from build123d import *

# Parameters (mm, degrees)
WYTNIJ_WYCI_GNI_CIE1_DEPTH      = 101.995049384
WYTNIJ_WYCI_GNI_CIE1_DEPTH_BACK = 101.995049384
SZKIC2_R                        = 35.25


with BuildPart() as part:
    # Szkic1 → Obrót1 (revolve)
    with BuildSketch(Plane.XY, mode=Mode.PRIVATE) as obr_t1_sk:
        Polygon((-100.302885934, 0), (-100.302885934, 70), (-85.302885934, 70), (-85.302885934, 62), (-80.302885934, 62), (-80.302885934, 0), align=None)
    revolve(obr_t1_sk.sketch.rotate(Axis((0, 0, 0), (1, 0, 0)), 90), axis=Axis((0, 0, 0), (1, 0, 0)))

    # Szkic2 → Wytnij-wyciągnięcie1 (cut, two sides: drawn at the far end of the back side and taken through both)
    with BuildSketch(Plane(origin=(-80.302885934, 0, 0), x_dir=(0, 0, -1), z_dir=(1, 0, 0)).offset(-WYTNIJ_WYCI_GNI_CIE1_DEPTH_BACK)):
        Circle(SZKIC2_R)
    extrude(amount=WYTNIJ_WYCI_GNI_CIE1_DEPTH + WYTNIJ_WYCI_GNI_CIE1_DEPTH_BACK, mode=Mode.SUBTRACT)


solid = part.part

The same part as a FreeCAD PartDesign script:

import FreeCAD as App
import Part
import Sketcher

doc = App.newDocument("Part")
body = doc.addObject("PartDesign::Body", "Body")

# Sketch on XY plane
sketch1 = doc.addObject("Sketcher::SketchObject", "Sketch")
body.addObject(sketch1)
sketch1.AttachmentSupport = (doc.XY_Plane, [""])
sketch1.MapMode = "FlatFace"
sketch1.addGeometry([
    Part.LineSegment(App.Vector(-100, 70, 0), App.Vector(-100, 0, 0)),  # 0
    Part.LineSegment(App.Vector(-100, 0, 0), App.Vector(-80, 0, 0)),  # 1
    Part.LineSegment(App.Vector(-80, 0, 0), App.Vector(-80, 62, 0)),  # 2
    Part.LineSegment(App.Vector(-80, 62, 0), App.Vector(-85, 62, 0)),  # 3
    Part.LineSegment(App.Vector(-85, 62, 0), App.Vector(-85, 70, 0)),  # 4
    Part.LineSegment(App.Vector(-85, 70, 0), App.Vector(-100, 70, 0)),  # 5
], False)
sketch1.addConstraint([
    Sketcher.Constraint("Coincident", 0, 2, 1, 1),
    Sketcher.Constraint("Coincident", 1, 2, 2, 1),
    Sketcher.Constraint("Coincident", 2, 2, 3, 1),
    Sketcher.Constraint("Coincident", 3, 2, 4, 1),
    Sketcher.Constraint("Coincident", 4, 2, 5, 1),
    Sketcher.Constraint("Coincident", 5, 2, 0, 1),
    Sketcher.Constraint("Vertical", 0),
    Sketcher.Constraint("Horizontal", 1),
    Sketcher.Constraint("Vertical", 2),
    Sketcher.Constraint("Horizontal", 3),
    Sketcher.Constraint("Vertical", 4),
    Sketcher.Constraint("Horizontal", 5),
    Sketcher.Constraint("PointOnObject", 0, 2, -1),
    Sketcher.Constraint("DistanceX", 1, 1, 1, 2, 20.0),
    Sketcher.Constraint("DistanceX", 3, 2, 3, 1, 5.0),
    Sketcher.Constraint("DistanceY", 0, 2, 0, 1, 70.0),
    Sketcher.Constraint("DistanceY", 2, 1, 2, 2, 62.0),
    Sketcher.Constraint("DistanceX", 0, 2, -1, 1, 100.302886),
])
revolution = doc.addObject("PartDesign::Revolution", "Revolution")
body.addObject(revolution)
revolution.Profile = sketch1
revolution.ReferenceAxis = (sketch1, ["H_Axis"])
revolution.Angle = 360

# Sketch on YZ plane
sketch2 = doc.addObject("Sketcher::SketchObject", "Sketch001")
body.addObject(sketch2)
sketch2.AttachmentSupport = (doc.YZ_Plane, [""])
sketch2.MapMode = "FlatFace"
sketch2.AttachmentOffset = App.Placement(App.Vector(0, 0, -80.302886), App.Rotation())
sketch2.addGeometry(Part.Circle(App.Vector(0, 0, 0), App.Vector(0, 0, 1), 35), False)
sketch2.addConstraint([
    Sketcher.Constraint("Coincident", 0, 3, -1, 1),
    Sketcher.Constraint("Diameter", 0, 70.5),
])
pocket1 = doc.addObject("PartDesign::Pocket", "Pocket")
body.addObject(pocket1)
pocket1.Profile = sketch2
pocket1.Type = "ThroughAll"
pocket1.Midplane = True

doc.recompute()
